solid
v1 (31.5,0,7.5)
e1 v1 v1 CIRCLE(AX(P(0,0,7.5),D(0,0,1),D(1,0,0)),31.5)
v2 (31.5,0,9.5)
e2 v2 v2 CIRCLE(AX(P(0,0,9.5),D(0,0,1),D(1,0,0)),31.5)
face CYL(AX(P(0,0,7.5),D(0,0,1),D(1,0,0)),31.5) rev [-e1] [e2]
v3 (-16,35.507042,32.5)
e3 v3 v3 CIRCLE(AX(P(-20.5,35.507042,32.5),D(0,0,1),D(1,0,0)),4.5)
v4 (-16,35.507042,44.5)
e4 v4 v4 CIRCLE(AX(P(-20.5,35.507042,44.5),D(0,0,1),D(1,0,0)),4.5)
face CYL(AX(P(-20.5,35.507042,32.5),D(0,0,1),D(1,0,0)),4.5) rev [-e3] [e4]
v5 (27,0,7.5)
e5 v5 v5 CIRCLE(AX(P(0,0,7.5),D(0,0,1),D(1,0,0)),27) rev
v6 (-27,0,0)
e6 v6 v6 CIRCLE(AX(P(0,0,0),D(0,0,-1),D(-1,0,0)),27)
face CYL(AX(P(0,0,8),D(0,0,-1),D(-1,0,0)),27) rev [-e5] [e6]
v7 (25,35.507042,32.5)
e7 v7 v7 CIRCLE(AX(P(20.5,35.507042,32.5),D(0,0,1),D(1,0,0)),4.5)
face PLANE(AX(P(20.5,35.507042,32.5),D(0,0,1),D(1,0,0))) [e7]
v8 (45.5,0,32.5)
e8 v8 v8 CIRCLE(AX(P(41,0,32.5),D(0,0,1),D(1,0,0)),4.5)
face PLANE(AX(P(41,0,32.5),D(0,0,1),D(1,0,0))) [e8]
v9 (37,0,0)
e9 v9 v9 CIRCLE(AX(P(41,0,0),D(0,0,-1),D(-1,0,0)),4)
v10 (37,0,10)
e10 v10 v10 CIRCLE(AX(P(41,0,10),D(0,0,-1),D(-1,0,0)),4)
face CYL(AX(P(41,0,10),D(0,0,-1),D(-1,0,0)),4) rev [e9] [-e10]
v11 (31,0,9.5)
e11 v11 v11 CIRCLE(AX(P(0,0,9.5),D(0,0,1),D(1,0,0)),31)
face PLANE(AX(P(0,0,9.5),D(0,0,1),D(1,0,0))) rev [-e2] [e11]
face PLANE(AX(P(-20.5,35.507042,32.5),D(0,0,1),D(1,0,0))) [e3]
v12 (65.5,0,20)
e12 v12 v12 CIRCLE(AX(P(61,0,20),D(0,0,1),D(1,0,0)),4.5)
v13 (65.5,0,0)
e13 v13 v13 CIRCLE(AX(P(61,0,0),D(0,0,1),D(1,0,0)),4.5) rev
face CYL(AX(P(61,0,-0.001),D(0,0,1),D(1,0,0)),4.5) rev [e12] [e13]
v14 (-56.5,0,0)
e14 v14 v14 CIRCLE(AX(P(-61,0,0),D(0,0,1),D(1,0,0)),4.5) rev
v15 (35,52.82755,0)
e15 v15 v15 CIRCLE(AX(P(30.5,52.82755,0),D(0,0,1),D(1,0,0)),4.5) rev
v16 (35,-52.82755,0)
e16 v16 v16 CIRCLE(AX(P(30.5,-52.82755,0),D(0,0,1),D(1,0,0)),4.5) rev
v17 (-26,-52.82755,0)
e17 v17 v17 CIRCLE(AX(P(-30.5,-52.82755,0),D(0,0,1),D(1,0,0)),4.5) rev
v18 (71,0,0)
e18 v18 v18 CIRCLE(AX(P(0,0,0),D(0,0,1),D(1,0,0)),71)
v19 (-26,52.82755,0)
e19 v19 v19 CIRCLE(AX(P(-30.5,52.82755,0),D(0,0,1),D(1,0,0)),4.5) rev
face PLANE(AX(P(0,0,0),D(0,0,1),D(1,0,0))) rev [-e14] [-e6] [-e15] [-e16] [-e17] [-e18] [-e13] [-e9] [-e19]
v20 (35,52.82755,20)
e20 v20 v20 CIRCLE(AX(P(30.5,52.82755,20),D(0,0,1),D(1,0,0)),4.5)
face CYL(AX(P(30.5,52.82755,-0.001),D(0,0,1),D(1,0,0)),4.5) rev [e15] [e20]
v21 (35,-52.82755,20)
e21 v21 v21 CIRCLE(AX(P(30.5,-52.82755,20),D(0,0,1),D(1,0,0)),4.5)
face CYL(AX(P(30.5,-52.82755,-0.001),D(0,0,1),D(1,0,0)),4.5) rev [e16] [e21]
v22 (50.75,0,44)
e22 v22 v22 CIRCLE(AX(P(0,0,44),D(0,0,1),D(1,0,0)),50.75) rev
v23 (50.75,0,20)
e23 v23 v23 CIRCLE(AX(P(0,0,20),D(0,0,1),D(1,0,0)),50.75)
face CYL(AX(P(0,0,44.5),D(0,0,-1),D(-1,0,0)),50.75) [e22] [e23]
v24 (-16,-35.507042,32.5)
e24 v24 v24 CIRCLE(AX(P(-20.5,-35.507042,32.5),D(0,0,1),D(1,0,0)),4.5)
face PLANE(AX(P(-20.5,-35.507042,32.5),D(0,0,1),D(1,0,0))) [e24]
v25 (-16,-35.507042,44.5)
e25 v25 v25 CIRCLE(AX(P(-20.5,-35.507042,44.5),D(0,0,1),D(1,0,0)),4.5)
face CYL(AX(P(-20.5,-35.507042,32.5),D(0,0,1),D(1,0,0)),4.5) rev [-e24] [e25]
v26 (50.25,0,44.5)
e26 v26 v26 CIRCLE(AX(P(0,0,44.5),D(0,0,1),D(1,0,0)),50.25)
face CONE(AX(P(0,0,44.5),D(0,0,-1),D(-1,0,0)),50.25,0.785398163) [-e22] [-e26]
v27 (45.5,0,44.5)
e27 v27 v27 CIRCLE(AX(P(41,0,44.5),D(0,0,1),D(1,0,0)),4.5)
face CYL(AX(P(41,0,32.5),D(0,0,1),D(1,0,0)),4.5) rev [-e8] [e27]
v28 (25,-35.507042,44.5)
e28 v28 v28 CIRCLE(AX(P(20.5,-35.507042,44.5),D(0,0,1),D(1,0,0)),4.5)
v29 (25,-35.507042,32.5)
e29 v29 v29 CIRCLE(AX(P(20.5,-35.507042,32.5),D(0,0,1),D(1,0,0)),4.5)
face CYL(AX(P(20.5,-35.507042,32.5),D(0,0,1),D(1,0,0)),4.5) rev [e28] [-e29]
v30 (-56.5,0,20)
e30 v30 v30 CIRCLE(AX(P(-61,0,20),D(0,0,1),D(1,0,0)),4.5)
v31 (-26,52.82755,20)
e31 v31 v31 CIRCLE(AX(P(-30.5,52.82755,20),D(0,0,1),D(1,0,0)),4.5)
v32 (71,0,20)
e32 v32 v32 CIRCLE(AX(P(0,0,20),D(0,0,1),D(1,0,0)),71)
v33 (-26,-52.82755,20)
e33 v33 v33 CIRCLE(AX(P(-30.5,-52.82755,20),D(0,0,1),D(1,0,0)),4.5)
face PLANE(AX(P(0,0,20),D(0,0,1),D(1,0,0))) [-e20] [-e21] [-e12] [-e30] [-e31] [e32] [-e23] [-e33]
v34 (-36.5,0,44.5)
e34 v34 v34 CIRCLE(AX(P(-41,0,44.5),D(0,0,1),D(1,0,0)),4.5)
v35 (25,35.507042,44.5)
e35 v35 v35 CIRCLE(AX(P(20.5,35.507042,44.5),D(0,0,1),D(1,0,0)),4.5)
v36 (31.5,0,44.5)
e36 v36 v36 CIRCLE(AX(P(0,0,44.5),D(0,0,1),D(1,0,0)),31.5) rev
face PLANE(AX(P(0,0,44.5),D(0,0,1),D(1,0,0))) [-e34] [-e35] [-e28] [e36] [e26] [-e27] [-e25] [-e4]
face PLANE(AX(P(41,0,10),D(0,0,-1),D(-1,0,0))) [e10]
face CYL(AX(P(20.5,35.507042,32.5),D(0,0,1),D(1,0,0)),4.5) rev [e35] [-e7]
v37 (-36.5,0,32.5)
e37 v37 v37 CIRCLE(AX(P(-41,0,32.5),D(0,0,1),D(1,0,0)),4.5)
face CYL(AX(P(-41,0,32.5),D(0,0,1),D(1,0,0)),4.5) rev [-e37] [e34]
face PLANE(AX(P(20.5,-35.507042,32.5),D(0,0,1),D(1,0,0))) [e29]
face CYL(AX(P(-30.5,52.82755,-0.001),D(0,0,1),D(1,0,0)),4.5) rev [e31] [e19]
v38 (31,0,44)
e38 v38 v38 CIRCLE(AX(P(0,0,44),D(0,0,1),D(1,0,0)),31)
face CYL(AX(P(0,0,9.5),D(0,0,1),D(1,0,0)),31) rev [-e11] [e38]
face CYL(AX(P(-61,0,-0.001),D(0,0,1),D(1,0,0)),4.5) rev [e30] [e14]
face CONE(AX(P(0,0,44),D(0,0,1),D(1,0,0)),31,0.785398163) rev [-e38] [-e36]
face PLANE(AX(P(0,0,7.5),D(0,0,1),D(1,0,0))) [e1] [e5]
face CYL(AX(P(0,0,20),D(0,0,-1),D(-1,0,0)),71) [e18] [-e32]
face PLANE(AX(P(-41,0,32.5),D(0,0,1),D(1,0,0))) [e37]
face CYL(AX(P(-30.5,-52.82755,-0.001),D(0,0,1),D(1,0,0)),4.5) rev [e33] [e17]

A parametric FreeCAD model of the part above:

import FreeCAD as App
import Part
import Sketcher
Q = App.Units.Quantity


def edges_at(feature, points):
    """Names of the edges that pass closest to the given points."""
    edges = feature.Shape.Edges
    near = lambda p: min(range(len(edges)), key=lambda i: edges[i].distToShape(Part.Vertex(*p))[0])
    return sorted({f"Edge{near(p) + 1}" for p in points})

doc = App.newDocument("Part")
body = doc.addObject("PartDesign::Body", "Body")

# Sketch on XY plane
sketch1 = body.newObject("Sketcher::SketchObject", "Sketch")
sketch1.AttachmentSupport = (doc.getObject("XY_Plane"), [""])
sketch1.MapMode = "FlatFace"
sketch1.addGeometry(Part.Circle(App.Vector(0, 0, 0), App.Vector(0, 0, 1), 71), False)
sketch1.addConstraint(Sketcher.Constraint("Coincident", 0, 3, -1, 1))
sketch1.addConstraint(Sketcher.Constraint("Diameter", 0, Q("142 mm")))
pad1 = body.newObject("PartDesign::Pad", "Pad")
pad1.Profile = sketch1
pad1.Length = 20

# Sketch on XY plane
sketch2 = body.newObject("Sketcher::SketchObject", "Sketch001")
sketch2.AttachmentSupport = (doc.getObject("XY_Plane"), [""])
sketch2.MapMode = "FlatFace"
sketch2.AttachmentOffset = App.Placement(App.Vector(0, 0, 20), App.Rotation())
sketch2.addGeometry(Part.Circle(App.Vector(0, 0, 0), App.Vector(0, 0, 1), 50.75), False)
sketch2.addConstraint(Sketcher.Constraint("Coincident", 0, 3, -1, 1))
sketch2.addConstraint(Sketcher.Constraint("Diameter", 0, Q("101.5 mm")))
pad2 = body.newObject("PartDesign::Pad", "Pad001")
pad2.Profile = sketch2
pad2.Length = 24.5

# Sketch on XY plane
sketch3 = body.newObject("Sketcher::SketchObject", "Sketch002")
sketch3.AttachmentSupport = (doc.getObject("XY_Plane"), [""])
sketch3.MapMode = "FlatFace"
sketch3.AttachmentOffset = App.Placement(App.Vector(0, 0, 44.5), App.Rotation())
sketch3.addGeometry(Part.Circle(App.Vector(0, 0, 0), App.Vector(0, 0, 1), 31), False)
sketch3.addConstraint(Sketcher.Constraint("Coincident", 0, 3, -1, 1))
sketch3.addConstraint(Sketcher.Constraint("Diameter", 0, Q("62 mm")))
pocket1 = body.newObject("PartDesign::Pocket", "Pocket")
pocket1.Profile = sketch3
pocket1.Length = 35
doc.recompute()

chamfer = body.newObject("PartDesign::Chamfer", "Chamfer")
chamfer.Base = (pocket1, edges_at(pocket1, [(-31, 0, 44.5), (-50.75, 0, 44.5)]))
chamfer.Size = 0.5

# Sketch on XY plane
sketch4 = body.newObject("Sketcher::SketchObject", "Sketch003")
sketch4.AttachmentSupport = (doc.getObject("XY_Plane"), [""])
sketch4.MapMode = "FlatFace"
sketch4.addGeometry(Part.Circle(App.Vector(0, 0, 0), App.Vector(0, 0, 1), 27), False)
sketch4.addConstraint(Sketcher.Constraint("Coincident", 0, 3, -1, 1))
sketch4.addConstraint(Sketcher.Constraint("Diameter", 0, Q("54 mm")))
pocket2 = body.newObject("PartDesign::Pocket", "Pocket001")
pocket2.Profile = sketch4
pocket2.Length = 8
pocket2.Reversed = True

# Sketch on XY plane
sketch5 = body.newObject("Sketcher::SketchObject", "Sketch004")
sketch5.AttachmentSupport = (doc.getObject("XY_Plane"), [""])
sketch5.MapMode = "FlatFace"
sketch5.AttachmentOffset = App.Placement(App.Vector(0, 0, 9.5), App.Rotation())
sketch5.addGeometry(Part.Circle(App.Vector(0, 0, 0), App.Vector(0, 0, 1), 31.5), False)
sketch5.addConstraint(Sketcher.Constraint("Coincident", 0, 3, -1, 1))
sketch5.addConstraint(Sketcher.Constraint("Diameter", 0, Q("63 mm")))
pocket3 = body.newObject("PartDesign::Pocket", "Pocket002")
pocket3.Profile = sketch5
pocket3.Length = 2

# Sketch on XY plane
sketch6 = body.newObject("Sketcher::SketchObject", "Sketch005")
sketch6.AttachmentSupport = (doc.getObject("XY_Plane"), [""])
sketch6.MapMode = "FlatFace"
sketch6.AttachmentOffset = App.Placement(App.Vector(0, 0, 20), App.Rotation())
sketch6.addGeometry(Part.Circle(App.Vector(-61, 0, 0), App.Vector(0, 0, 1), 4.5), False)
sketch6.addConstraint(Sketcher.Constraint("PointOnObject", 0, 3, -1))
sketch6.addConstraint(Sketcher.Constraint("Diameter", 0, Q("9 mm")))
sketch6.addConstraint(Sketcher.Constraint("DistanceX", 0, 3, -1, 1, Q("61 mm")))
pocket4 = body.newObject("PartDesign::Pocket", "Pocket003")
pocket4.Profile = sketch6
pocket4.Type = "UpToFirst"

# Sketch on XY plane
sketch7 = body.newObject("Sketcher::SketchObject", "Sketch006")
sketch7.AttachmentSupport = (doc.getObject("XY_Plane"), [""])
sketch7.MapMode = "FlatFace"
sketch7.AttachmentOffset = App.Placement(App.Vector(0, 0, 20), App.Rotation())
sketch7.addGeometry(Part.Circle(App.Vector(-30.5, 52.82755, 0), App.Vector(0, 0, 1), 4.5), False)
sketch7.addConstraint(Sketcher.Constraint("Diameter", 0, Q("9 mm")))
sketch7.addConstraint(Sketcher.Constraint("DistanceX", 0, 3, -1, 1, Q("30.5 mm")))
sketch7.addConstraint(Sketcher.Constraint("DistanceY", -1, 1, 0, 3, Q("52.82755 mm")))
pocket5 = body.newObject("PartDesign::Pocket", "Pocket004")
pocket5.Profile = sketch7
pocket5.Type = "UpToFirst"

# Sketch on XY plane
sketch8 = body.newObject("Sketcher::SketchObject", "Sketch007")
sketch8.AttachmentSupport = (doc.getObject("XY_Plane"), [""])
sketch8.MapMode = "FlatFace"
sketch8.AttachmentOffset = App.Placement(App.Vector(0, 0, 20), App.Rotation())
sketch8.addGeometry(Part.Circle(App.Vector(30.5, 52.82755, 0), App.Vector(0, 0, 1), 4.5), False)
sketch8.addConstraint(Sketcher.Constraint("Diameter", 0, Q("9 mm")))
sketch8.addConstraint(Sketcher.Constraint("DistanceX", -1, 1, 0, 3, Q("30.5 mm")))
sketch8.addConstraint(Sketcher.Constraint("DistanceY", -1, 1, 0, 3, Q("52.82755 mm")))
pocket6 = body.newObject("PartDesign::Pocket", "Pocket005")
pocket6.Profile = sketch8
pocket6.Type = "UpToFirst"

# Sketch on XY plane
sketch9 = body.newObject("Sketcher::SketchObject", "Sketch008")
sketch9.AttachmentSupport = (doc.getObject("XY_Plane"), [""])
sketch9.MapMode = "FlatFace"
sketch9.AttachmentOffset = App.Placement(App.Vector(0, 0, 20), App.Rotation())
sketch9.addGeometry(Part.Circle(App.Vector(61, 0, 0), App.Vector(0, 0, 1), 4.5), False)
sketch9.addConstraint(Sketcher.Constraint("PointOnObject", 0, 3, -1))
sketch9.addConstraint(Sketcher.Constraint("Diameter", 0, Q("9 mm")))
sketch9.addConstraint(Sketcher.Constraint("DistanceX", -1, 1, 0, 3, Q("61 mm")))
pocket7 = body.newObject("PartDesign::Pocket", "Pocket006")
pocket7.Profile = sketch9
pocket7.Type = "UpToFirst"

# Sketch on XY plane
sketch10 = body.newObject("Sketcher::SketchObject", "Sketch009")
sketch10.AttachmentSupport = (doc.getObject("XY_Plane"), [""])
sketch10.MapMode = "FlatFace"
sketch10.AttachmentOffset = App.Placement(App.Vector(0, 0, 20), App.Rotation())
sketch10.addGeometry(Part.Circle(App.Vector(30.5, -52.82755, 0), App.Vector(0, 0, 1), 4.5), False)
sketch10.addConstraint(Sketcher.Constraint("Diameter", 0, Q("9 mm")))
sketch10.addConstraint(Sketcher.Constraint("DistanceX", -1, 1, 0, 3, Q("30.5 mm")))
sketch10.addConstraint(Sketcher.Constraint("DistanceY", 0, 3, -1, 1, Q("52.82755 mm")))
pocket8 = body.newObject("PartDesign::Pocket", "Pocket007")
pocket8.Profile = sketch10
pocket8.Type = "UpToFirst"

# Sketch on XY plane
sketch11 = body.newObject("Sketcher::SketchObject", "Sketch010")
sketch11.AttachmentSupport = (doc.getObject("XY_Plane"), [""])
sketch11.MapMode = "FlatFace"
sketch11.AttachmentOffset = App.Placement(App.Vector(0, 0, 20), App.Rotation())
sketch11.addGeometry(Part.Circle(App.Vector(-30.5, -52.82755, 0), App.Vector(0, 0, 1), 4.5), False)
sketch11.addConstraint(Sketcher.Constraint("Diameter", 0, Q("9 mm")))
sketch11.addConstraint(Sketcher.Constraint("DistanceX", 0, 3, -1, 1, Q("30.5 mm")))
sketch11.addConstraint(Sketcher.Constraint("DistanceY", 0, 3, -1, 1, Q("52.82755 mm")))
pocket9 = body.newObject("PartDesign::Pocket", "Pocket008")
pocket9.Profile = sketch11
pocket9.Type = "UpToFirst"

# Sketch on XY plane
sketch12 = body.newObject("Sketcher::SketchObject", "Sketch011")
sketch12.AttachmentSupport = (doc.getObject("XY_Plane"), [""])
sketch12.MapMode = "FlatFace"
sketch12.addGeometry(Part.Circle(App.Vector(41, 0, 0), App.Vector(0, 0, 1), 4), False)
sketch12.addConstraint(Sketcher.Constraint("PointOnObject", 0, 3, -1))
sketch12.addConstraint(Sketcher.Constraint("Diameter", 0, Q("8 mm")))
sketch12.addConstraint(Sketcher.Constraint("DistanceX", -1, 1, 0, 3, Q("41 mm")))
pocket10 = body.newObject("PartDesign::Pocket", "Pocket009")
pocket10.Profile = sketch12
pocket10.Length = 10
pocket10.Reversed = True

# Sketch on XY plane
sketch13 = body.newObject("Sketcher::SketchObject", "Sketch012")
sketch13.AttachmentSupport = (doc.getObject("XY_Plane"), [""])
sketch13.MapMode = "FlatFace"
sketch13.AttachmentOffset = App.Placement(App.Vector(0, 0, 44.5), App.Rotation())
sketch13.addGeometry(Part.Circle(App.Vector(41, 0, 0), App.Vector(0, 0, 1), 4.5), False)
sketch13.addGeometry(Part.Circle(App.Vector(20.5, -35.507042, 0), App.Vector(0, 0, 1), 4.5), False)
sketch13.addGeometry(Part.Circle(App.Vector(-20.5, -35.507042, 0), App.Vector(0, 0, 1), 4.5), False)
sketch13.addGeometry(Part.Circle(App.Vector(-41, 0, 0), App.Vector(0, 0, 1), 4.5), False)
sketch13.addGeometry(Part.Circle(App.Vector(-20.5, 35.507042, 0), App.Vector(0, 0, 1), 4.5), False)
sketch13.addGeometry(Part.Circle(App.Vector(20.5, 35.507042, 0), App.Vector(0, 0, 1), 4.5), False)
sketch13.addConstraint(Sketcher.Constraint("Equal", 0, 1))
sketch13.addConstraint(Sketcher.Constraint("Equal", 1, 2))
sketch13.addConstraint(Sketcher.Constraint("Equal", 2, 3))
sketch13.addConstraint(Sketcher.Constraint("Equal", 3, 4))
sketch13.addConstraint(Sketcher.Constraint("Equal", 4, 5))
sketch13.addConstraint(Sketcher.Constraint("Symmetric", 0, 3, 3, 3, -1, 1))
sketch13.addConstraint(Sketcher.Constraint("Symmetric", 1, 3, 4, 3, -1, 1))
sketch13.addConstraint(Sketcher.Constraint("Symmetric", 2, 3, 5, 3, -1, 1))
sketch13.addConstraint(Sketcher.Constraint("Symmetric", 1, 3, 2, 3, -2))
sketch13.addConstraint(Sketcher.Constraint("PointOnObject", 0, 3, -1))
sketch13.addConstraint(Sketcher.Constraint("Diameter", 0, Q("9 mm")))
sketch13.addConstraint(Sketcher.Constraint("DistanceX", -1, 1, 0, 3, Q("41 mm")))
sketch13.addConstraint(Sketcher.Constraint("DistanceX", 2, 3, 1, 3, Q("41 mm")))
sketch13.addConstraint(Sketcher.Constraint("DistanceY", 1, 3, -1, 1, Q("35.507042 mm")))
pocket11 = body.newObject("PartDesign::Pocket", "Pocket010")
pocket11.Profile = sketch13
pocket11.Length = 12

doc.recompute()
